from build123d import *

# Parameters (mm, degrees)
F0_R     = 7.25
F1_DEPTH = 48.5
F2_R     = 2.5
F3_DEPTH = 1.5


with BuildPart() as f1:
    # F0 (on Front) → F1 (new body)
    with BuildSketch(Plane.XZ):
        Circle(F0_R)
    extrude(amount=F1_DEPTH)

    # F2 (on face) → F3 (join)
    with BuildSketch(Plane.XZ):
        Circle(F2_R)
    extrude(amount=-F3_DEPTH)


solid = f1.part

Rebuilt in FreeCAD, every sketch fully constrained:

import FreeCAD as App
import Part
import Sketcher

V = App.Vector
Q = App.Units.Quantity

doc = App.newDocument("Part")
body = doc.addObject("PartDesign::Body", "Body")

# Sketch on XZ plane
sketch1 = body.newObject("Sketcher::SketchObject", "Sketch")
sketch1.AttachmentSupport = (doc.getObject("XZ_Plane"), [""])
sketch1.MapMode = "FlatFace"
sketch1.addGeometry(Part.Circle(V(0, 0, 0), V(0, 0, 1), 7), False)
sketch1.addConstraint([
    Sketcher.Constraint("Coincident", 0, 3, -1, 1),
    Sketcher.Constraint("Diameter", 0, Q("14.5 mm")),
])
pad1 = body.newObject("PartDesign::Pad", "Pad")
pad1.Profile = sketch1
pad1.Length = 48.5

# Sketch on XZ plane
sketch2 = body.newObject("Sketcher::SketchObject", "Sketch001")
sketch2.AttachmentSupport = (doc.getObject("XZ_Plane"), [""])
sketch2.MapMode = "FlatFace"
sketch2.addGeometry(Part.Circle(V(0, 0, 0), V(0, 0, 1), 2.5), False)
sketch2.addConstraint([
    Sketcher.Constraint("Coincident", 0, 3, -1, 1),
    Sketcher.Constraint("Diameter", 0, Q("5 mm")),
])
pad2 = body.newObject("PartDesign::Pad", "Pad001")
pad2.Profile = sketch2
pad2.Length = 1.5
pad2.Reversed = True

doc.recompute()
